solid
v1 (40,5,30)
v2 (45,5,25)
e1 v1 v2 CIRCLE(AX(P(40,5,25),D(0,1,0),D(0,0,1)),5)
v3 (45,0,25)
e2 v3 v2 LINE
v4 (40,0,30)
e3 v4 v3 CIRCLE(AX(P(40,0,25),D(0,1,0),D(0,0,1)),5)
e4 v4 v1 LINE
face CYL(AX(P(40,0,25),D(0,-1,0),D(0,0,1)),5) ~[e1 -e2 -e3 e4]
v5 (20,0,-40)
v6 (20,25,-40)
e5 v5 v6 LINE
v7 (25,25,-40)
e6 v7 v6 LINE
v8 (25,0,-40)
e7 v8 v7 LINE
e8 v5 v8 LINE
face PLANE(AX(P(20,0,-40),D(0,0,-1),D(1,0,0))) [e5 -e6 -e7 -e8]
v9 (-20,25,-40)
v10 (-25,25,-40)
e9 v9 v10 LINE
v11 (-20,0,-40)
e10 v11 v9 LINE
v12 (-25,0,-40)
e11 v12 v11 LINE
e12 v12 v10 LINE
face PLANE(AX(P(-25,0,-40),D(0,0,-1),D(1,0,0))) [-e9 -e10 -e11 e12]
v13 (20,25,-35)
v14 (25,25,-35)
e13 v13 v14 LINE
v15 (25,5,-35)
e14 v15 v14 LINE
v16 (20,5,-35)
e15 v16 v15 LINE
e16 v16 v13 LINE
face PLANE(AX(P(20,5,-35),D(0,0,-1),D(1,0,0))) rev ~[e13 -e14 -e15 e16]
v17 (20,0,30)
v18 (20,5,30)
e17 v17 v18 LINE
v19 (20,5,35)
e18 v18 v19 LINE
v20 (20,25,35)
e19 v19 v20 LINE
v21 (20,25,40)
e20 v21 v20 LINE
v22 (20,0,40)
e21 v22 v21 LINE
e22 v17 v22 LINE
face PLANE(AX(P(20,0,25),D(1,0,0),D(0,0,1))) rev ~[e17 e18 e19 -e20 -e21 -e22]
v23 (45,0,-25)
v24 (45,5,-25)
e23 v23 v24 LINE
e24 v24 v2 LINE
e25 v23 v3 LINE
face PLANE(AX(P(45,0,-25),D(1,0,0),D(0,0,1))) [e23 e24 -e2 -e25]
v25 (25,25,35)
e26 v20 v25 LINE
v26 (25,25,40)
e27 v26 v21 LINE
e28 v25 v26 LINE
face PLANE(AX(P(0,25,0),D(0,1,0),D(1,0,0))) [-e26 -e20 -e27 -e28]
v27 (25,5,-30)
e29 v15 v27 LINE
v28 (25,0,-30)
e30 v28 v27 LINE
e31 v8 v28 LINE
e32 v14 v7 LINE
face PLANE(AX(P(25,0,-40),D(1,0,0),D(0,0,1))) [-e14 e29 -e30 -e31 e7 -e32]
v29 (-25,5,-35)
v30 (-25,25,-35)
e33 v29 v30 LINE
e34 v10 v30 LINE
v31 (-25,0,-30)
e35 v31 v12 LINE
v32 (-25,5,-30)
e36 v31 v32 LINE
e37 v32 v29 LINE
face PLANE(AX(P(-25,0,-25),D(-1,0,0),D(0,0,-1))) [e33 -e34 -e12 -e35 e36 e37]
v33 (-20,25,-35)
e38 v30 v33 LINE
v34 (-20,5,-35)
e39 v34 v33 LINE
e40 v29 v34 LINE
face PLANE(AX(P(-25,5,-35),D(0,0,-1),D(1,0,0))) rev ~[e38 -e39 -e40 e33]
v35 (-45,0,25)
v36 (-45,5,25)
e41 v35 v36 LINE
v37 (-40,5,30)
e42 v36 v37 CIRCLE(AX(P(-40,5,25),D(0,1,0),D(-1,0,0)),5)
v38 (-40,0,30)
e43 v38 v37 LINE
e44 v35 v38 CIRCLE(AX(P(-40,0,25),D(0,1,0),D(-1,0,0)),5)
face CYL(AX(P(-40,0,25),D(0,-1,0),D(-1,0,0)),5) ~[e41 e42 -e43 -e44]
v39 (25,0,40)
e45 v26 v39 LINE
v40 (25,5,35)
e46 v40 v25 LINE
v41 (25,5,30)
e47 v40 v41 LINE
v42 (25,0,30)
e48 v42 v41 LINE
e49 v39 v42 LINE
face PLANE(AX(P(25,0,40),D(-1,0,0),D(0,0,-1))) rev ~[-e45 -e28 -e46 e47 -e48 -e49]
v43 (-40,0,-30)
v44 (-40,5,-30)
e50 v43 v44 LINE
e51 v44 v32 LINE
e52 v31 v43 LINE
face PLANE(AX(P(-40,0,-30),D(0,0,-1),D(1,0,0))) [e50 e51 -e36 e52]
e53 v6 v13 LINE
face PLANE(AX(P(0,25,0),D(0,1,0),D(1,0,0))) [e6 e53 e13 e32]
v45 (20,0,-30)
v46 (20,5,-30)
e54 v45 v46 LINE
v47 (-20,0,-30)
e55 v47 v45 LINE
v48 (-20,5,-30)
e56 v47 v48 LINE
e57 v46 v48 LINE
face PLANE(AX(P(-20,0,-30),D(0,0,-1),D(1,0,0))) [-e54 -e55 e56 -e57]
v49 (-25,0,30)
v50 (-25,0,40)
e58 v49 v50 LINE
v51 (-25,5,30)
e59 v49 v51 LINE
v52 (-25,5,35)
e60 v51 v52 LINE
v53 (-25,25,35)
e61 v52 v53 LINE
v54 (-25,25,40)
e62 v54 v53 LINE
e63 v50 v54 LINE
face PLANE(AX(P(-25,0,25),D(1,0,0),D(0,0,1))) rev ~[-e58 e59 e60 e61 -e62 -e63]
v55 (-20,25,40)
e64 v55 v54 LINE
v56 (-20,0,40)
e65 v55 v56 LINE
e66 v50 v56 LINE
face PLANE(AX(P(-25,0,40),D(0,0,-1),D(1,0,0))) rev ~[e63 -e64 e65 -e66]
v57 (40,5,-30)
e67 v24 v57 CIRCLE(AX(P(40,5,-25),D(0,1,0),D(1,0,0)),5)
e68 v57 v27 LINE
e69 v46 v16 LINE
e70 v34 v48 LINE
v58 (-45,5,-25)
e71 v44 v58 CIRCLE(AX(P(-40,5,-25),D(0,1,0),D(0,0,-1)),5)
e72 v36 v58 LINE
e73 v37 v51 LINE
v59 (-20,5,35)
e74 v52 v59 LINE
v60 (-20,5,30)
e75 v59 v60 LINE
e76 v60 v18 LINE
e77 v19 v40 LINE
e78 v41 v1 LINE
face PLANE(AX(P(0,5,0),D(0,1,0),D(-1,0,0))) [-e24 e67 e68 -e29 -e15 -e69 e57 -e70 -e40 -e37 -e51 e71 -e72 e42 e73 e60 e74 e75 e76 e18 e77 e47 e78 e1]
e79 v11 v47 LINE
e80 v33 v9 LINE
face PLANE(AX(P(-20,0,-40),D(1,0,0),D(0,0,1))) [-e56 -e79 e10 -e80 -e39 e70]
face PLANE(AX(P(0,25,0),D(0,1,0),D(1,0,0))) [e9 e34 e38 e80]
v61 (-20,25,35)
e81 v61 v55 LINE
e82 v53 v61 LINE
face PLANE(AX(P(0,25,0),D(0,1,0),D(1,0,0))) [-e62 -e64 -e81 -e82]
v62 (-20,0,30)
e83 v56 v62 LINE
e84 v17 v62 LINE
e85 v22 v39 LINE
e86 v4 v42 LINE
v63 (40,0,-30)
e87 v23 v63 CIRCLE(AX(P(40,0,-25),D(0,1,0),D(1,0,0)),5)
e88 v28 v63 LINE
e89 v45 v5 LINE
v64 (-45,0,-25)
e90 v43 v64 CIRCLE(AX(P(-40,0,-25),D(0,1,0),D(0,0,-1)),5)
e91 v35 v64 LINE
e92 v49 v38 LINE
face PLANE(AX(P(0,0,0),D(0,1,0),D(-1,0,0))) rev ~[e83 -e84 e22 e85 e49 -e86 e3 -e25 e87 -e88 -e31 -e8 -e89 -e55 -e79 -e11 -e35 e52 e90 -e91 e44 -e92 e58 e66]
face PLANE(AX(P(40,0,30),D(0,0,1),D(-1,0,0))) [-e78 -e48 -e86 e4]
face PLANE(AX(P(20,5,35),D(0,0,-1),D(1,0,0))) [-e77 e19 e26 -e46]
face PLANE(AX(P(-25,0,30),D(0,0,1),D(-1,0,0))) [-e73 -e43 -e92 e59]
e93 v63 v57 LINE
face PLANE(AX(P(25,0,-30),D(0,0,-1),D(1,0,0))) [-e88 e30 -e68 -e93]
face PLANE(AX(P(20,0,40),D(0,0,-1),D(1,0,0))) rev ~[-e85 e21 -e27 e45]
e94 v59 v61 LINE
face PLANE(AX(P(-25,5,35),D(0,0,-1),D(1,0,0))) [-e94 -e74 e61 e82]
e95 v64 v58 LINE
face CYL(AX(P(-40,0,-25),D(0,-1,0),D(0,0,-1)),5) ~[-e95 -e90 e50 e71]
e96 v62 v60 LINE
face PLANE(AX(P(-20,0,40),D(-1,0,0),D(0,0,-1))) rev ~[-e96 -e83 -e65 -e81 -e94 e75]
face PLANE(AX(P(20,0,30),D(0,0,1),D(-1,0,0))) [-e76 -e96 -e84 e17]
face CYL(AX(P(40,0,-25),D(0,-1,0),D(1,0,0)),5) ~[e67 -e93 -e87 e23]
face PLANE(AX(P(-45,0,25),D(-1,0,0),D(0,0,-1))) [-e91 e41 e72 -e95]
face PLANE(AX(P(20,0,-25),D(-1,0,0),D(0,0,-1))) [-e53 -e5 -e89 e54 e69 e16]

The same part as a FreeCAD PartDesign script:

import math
import FreeCAD as App
import Part
import Sketcher
from FreeCAD import Vector
Q = App.Units.Quantity

doc = App.newDocument("Part")
body = doc.addObject("PartDesign::Body", "Body")
body.AllowCompound = True

# Sketch on XZ plane
sketch1 = body.newObject("Sketcher::SketchObject", "Sketch")
sketch1.AttachmentSupport = (doc.getObject("XZ_Plane"), [""])
sketch1.MapMode = "FlatFace"
sketch1.addGeometry(Part.LineSegment(Vector(20, 25, 0), Vector(25, 25, 0)), False)
sketch1.addGeometry(Part.LineSegment(Vector(25, 25, 0), Vector(25, 40, 0)), False)
sketch1.addGeometry(Part.LineSegment(Vector(25, 40, 0), Vector(20, 40, 0)), False)
sketch1.addGeometry(Part.LineSegment(Vector(20, 40, 0), Vector(20, 25, 0)), False)
sketch1.addGeometry(Part.LineSegment(Vector(-25, 25, 0), Vector(-20, 25, 0)), False)
sketch1.addGeometry(Part.LineSegment(Vector(-20, 25, 0), Vector(-20, 40, 0)), False)
sketch1.addGeometry(Part.LineSegment(Vector(-20, 40, 0), Vector(-25, 40, 0)), False)
sketch1.addGeometry(Part.LineSegment(Vector(-25, 40, 0), Vector(-25, 25, 0)), False)
sketch1.addGeometry(Part.LineSegment(Vector(25, -40, 0), Vector(25, -25, 0)), False)
sketch1.addGeometry(Part.LineSegment(Vector(25, -25, 0), Vector(20, -25, 0)), False)
sketch1.addGeometry(Part.LineSegment(Vector(20, -25, 0), Vector(20, -40, 0)), False)
sketch1.addGeometry(Part.LineSegment(Vector(20, -40, 0), Vector(25, -40, 0)), False)
sketch1.addGeometry(Part.LineSegment(Vector(-20, -40, 0), Vector(-20, -25, 0)), False)
sketch1.addGeometry(Part.LineSegment(Vector(-20, -25, 0), Vector(-25, -25, 0)), False)
sketch1.addGeometry(Part.LineSegment(Vector(-25, -25, 0), Vector(-25, -40, 0)), False)
sketch1.addGeometry(Part.LineSegment(Vector(-25, -40, 0), Vector(-20, -40, 0)), False)
sketch1.addConstraint(Sketcher.Constraint("Coincident", 0, 2, 1, 1))
sketch1.addConstraint(Sketcher.Constraint("Coincident", 1, 2, 2, 1))
sketch1.addConstraint(Sketcher.Constraint("Coincident", 2, 2, 3, 1))
sketch1.addConstraint(Sketcher.Constraint("Coincident", 3, 2, 0, 1))
sketch1.addConstraint(Sketcher.Constraint("Coincident", 4, 2, 5, 1))
sketch1.addConstraint(Sketcher.Constraint("Coincident", 5, 2, 6, 1))
sketch1.addConstraint(Sketcher.Constraint("Coincident", 6, 2, 7, 1))
sketch1.addConstraint(Sketcher.Constraint("Coincident", 7, 2, 4, 1))
sketch1.addConstraint(Sketcher.Constraint("Coincident", 8, 2, 9, 1))
sketch1.addConstraint(Sketcher.Constraint("Coincident", 9, 2, 10, 1))
sketch1.addConstraint(Sketcher.Constraint("Coincident", 10, 2, 11, 1))
sketch1.addConstraint(Sketcher.Constraint("Coincident", 11, 2, 8, 1))
sketch1.addConstraint(Sketcher.Constraint("Coincident", 12, 2, 13, 1))
sketch1.addConstraint(Sketcher.Constraint("Coincident", 13, 2, 14, 1))
sketch1.addConstraint(Sketcher.Constraint("Coincident", 14, 2, 15, 1))
sketch1.addConstraint(Sketcher.Constraint("Coincident", 15, 2, 12, 1))
sketch1.addConstraint(Sketcher.Constraint("Horizontal", 0))
sketch1.addConstraint(Sketcher.Constraint("Vertical", 1))
sketch1.addConstraint(Sketcher.Constraint("Horizontal", 2))
sketch1.addConstraint(Sketcher.Constraint("Vertical", 3))
sketch1.addConstraint(Sketcher.Constraint("Horizontal", 4))
sketch1.addConstraint(Sketcher.Constraint("Vertical", 5))
sketch1.addConstraint(Sketcher.Constraint("Horizontal", 6))
sketch1.addConstraint(Sketcher.Constraint("Vertical", 7))
sketch1.addConstraint(Sketcher.Constraint("Vertical", 8))
sketch1.addConstraint(Sketcher.Constraint("Horizontal", 9))
sketch1.addConstraint(Sketcher.Constraint("Vertical", 10))
sketch1.addConstraint(Sketcher.Constraint("Horizontal", 11))
sketch1.addConstraint(Sketcher.Constraint("Vertical", 12))
sketch1.addConstraint(Sketcher.Constraint("Horizontal", 13))
sketch1.addConstraint(Sketcher.Constraint("Vertical", 14))
sketch1.addConstraint(Sketcher.Constraint("Horizontal", 15))
sketch1.addConstraint(Sketcher.Constraint("Symmetric", 7, 2, 8, 2, -1, 1))
sketch1.addConstraint(Sketcher.Constraint("Symmetric", 5, 2, 10, 2, -1, 1))
sketch1.addConstraint(Sketcher.Constraint("Symmetric", 3, 2, 12, 2, -1, 1))
sketch1.addConstraint(Sketcher.Constraint("Symmetric", 1, 2, 14, 2, -1, 1))
sketch1.addConstraint(Sketcher.Constraint("Symmetric", 3, 2, 4, 2, -2))
sketch1.addConstraint(Sketcher.Constraint("Symmetric", 1, 2, 6, 2, -2))
sketch1.addConstraint(Sketcher.Constraint("DistanceX", 0, 1, 0, 2, Q("5 mm")))
sketch1.addConstraint(Sketcher.Constraint("DistanceY", 1, 1, 1, 2, Q("15 mm")))
sketch1.addConstraint(Sketcher.Constraint("DistanceX", -1, 1, 0, 2, Q("25 mm")))
sketch1.addConstraint(Sketcher.Constraint("DistanceY", -1, 1, 0, 2, Q("25 mm")))
pad1 = body.newObject("PartDesign::Pad", "Pad")
pad1.Profile = sketch1
pad1.Length = 5
pad1.Reversed = True

# Sketch on XZ plane
sketch2 = body.newObject("Sketcher::SketchObject", "Sketch001")
sketch2.AttachmentSupport = (doc.getObject("XZ_Plane"), [""])
sketch2.MapMode = "FlatFace"
sketch2.AttachmentOffset = App.Placement(Vector(0, 0, -5), App.Rotation())
sketch2.addGeometry(Part.LineSegment(Vector(20, 40, 0), Vector(25, 40, 0)), False)
sketch2.addGeometry(Part.LineSegment(Vector(25, 40, 0), Vector(25, 35, 0)), False)
sketch2.addGeometry(Part.LineSegment(Vector(25, 35, 0), Vector(20, 35, 0)), False)
sketch2.addGeometry(Part.LineSegment(Vector(20, 35, 0), Vector(20, 40, 0)), False)
sketch2.addGeometry(Part.LineSegment(Vector(-25, 40, 0), Vector(-20, 40, 0)), False)
sketch2.addGeometry(Part.LineSegment(Vector(-20, 40, 0), Vector(-20, 35, 0)), False)
sketch2.addGeometry(Part.LineSegment(Vector(-20, 35, 0), Vector(-25, 35, 0)), False)
sketch2.addGeometry(Part.LineSegment(Vector(-25, 35, 0), Vector(-25, 40, 0)), False)
sketch2.addGeometry(Part.LineSegment(Vector(25, -35, 0), Vector(25, -40, 0)), False)
sketch2.addGeometry(Part.LineSegment(Vector(25, -40, 0), Vector(20, -40, 0)), False)
sketch2.addGeometry(Part.LineSegment(Vector(20, -40, 0), Vector(20, -35, 0)), False)
sketch2.addGeometry(Part.LineSegment(Vector(20, -35, 0), Vector(25, -35, 0)), False)
sketch2.addGeometry(Part.LineSegment(Vector(-20, -35, 0), Vector(-20, -40, 0)), False)
sketch2.addGeometry(Part.LineSegment(Vector(-20, -40, 0), Vector(-25, -40, 0)), False)
sketch2.addGeometry(Part.LineSegment(Vector(-25, -40, 0), Vector(-25, -35, 0)), False)
sketch2.addGeometry(Part.LineSegment(Vector(-25, -35, 0), Vector(-20, -35, 0)), False)
sketch2.addConstraint(Sketcher.Constraint("Coincident", 0, 2, 1, 1))
sketch2.addConstraint(Sketcher.Constraint("Coincident", 1, 2, 2, 1))
sketch2.addConstraint(Sketcher.Constraint("Coincident", 2, 2, 3, 1))
sketch2.addConstraint(Sketcher.Constraint("Coincident", 3, 2, 0, 1))
sketch2.addConstraint(Sketcher.Constraint("Coincident", 4, 2, 5, 1))
sketch2.addConstraint(Sketcher.Constraint("Coincident", 5, 2, 6, 1))
sketch2.addConstraint(Sketcher.Constraint("Coincident", 6, 2, 7, 1))
sketch2.addConstraint(Sketcher.Constraint("Coincident", 7, 2, 4, 1))
sketch2.addConstraint(Sketcher.Constraint("Coincident", 8, 2, 9, 1))
sketch2.addConstraint(Sketcher.Constraint("Coincident", 9, 2, 10, 1))
sketch2.addConstraint(Sketcher.Constraint("Coincident", 10, 2, 11, 1))
sketch2.addConstraint(Sketcher.Constraint("Coincident", 11, 2, 8, 1))
sketch2.addConstraint(Sketcher.Constraint("Coincident", 12, 2, 13, 1))
sketch2.addConstraint(Sketcher.Constraint("Coincident", 13, 2, 14, 1))
sketch2.addConstraint(Sketcher.Constraint("Coincident", 14, 2, 15, 1))
sketch2.addConstraint(Sketcher.Constraint("Coincident", 15, 2, 12, 1))
sketch2.addConstraint(Sketcher.Constraint("Horizontal", 0))
sketch2.addConstraint(Sketcher.Constraint("Vertical", 1))
sketch2.addConstraint(Sketcher.Constraint("Horizontal", 2))
sketch2.addConstraint(Sketcher.Constraint("Vertical", 3))
sketch2.addConstraint(Sketcher.Constraint("Horizontal", 4))
sketch2.addConstraint(Sketcher.Constraint("Vertical", 5))
sketch2.addConstraint(Sketcher.Constraint("Horizontal", 6))
sketch2.addConstraint(Sketcher.Constraint("Vertical", 7))
sketch2.addConstraint(Sketcher.Constraint("Vertical", 8))
sketch2.addConstraint(Sketcher.Constraint("Horizontal", 9))
sketch2.addConstraint(Sketcher.Constraint("Vertical", 10))
sketch2.addConstraint(Sketcher.Constraint("Horizontal", 11))
sketch2.addConstraint(Sketcher.Constraint("Vertical", 12))
sketch2.addConstraint(Sketcher.Constraint("Horizontal", 13))
sketch2.addConstraint(Sketcher.Constraint("Vertical", 14))
sketch2.addConstraint(Sketcher.Constraint("Horizontal", 15))
sketch2.addConstraint(Sketcher.Constraint("Symmetric", 7, 2, 8, 2, -1, 1))
sketch2.addConstraint(Sketcher.Constraint("Symmetric", 5, 2, 10, 2, -1, 1))
sketch2.addConstraint(Sketcher.Constraint("Symmetric", 3, 2, 12, 2, -1, 1))
sketch2.addConstraint(Sketcher.Constraint("Symmetric", 1, 2, 14, 2, -1, 1))
sketch2.addConstraint(Sketcher.Constraint("Symmetric", 3, 2, 4, 2, -2))
sketch2.addConstraint(Sketcher.Constraint("Symmetric", 1, 2, 6, 2, -2))
sketch2.addConstraint(Sketcher.Constraint("Equal", 15, 1))
sketch2.addConstraint(Sketcher.Constraint("DistanceX", 0, 1, 0, 2, Q("5 mm")))
sketch2.addConstraint(Sketcher.Constraint("DistanceX", -1, 1, 0, 2, Q("25 mm")))
sketch2.addConstraint(Sketcher.Constraint("DistanceY", -1, 1, 0, 2, Q("40 mm")))
pad2 = body.newObject("PartDesign::Pad", "Pad001")
pad2.Profile = sketch2
pad2.Length = 20
pad2.Reversed = True

# Sketch on XZ plane
sketch3 = body.newObject("Sketcher::SketchObject", "Sketch002")
sketch3.AttachmentSupport = (doc.getObject("XZ_Plane"), [""])
sketch3.MapMode = "FlatFace"
sketch3.addGeometry(Part.LineSegment(Vector(-25, -30, 0), Vector(-40, -30, 0)), False)
sketch3.addGeometry(Part.ArcOfCircle(Part.Circle(Vector(-40, -25, 0), Vector(0, 0, 1), 5), math.radians(180), math.radians(270)), False)
sketch3.addGeometry(Part.LineSegment(Vector(-45, -25, 0), Vector(-45, 25, 0)), False)
sketch3.addGeometry(Part.ArcOfCircle(Part.Circle(Vector(-40, 25, 0), Vector(0, 0, 1), 5), math.radians(90), math.radians(180)), False)
sketch3.addGeometry(Part.LineSegment(Vector(-40, 30, 0), Vector(-25, 30, 0)), False)
sketch3.addGeometry(Part.LineSegment(Vector(-25, 30, 0), Vector(-25, 25, 0)), False)
sketch3.addGeometry(Part.LineSegment(Vector(-25, 25, 0), Vector(-20, 25, 0)), False)
sketch3.addGeometry(Part.LineSegment(Vector(-20, 25, 0), Vector(-20, 30, 0)), False)
sketch3.addGeometry(Part.LineSegment(Vector(-20, 30, 0), Vector(20, 30, 0)), False)
sketch3.addGeometry(Part.LineSegment(Vector(20, 30, 0), Vector(20, 25, 0)), False)
sketch3.addGeometry(Part.LineSegment(Vector(20, 25, 0), Vector(25, 25, 0)), False)
sketch3.addGeometry(Part.LineSegment(Vector(25, 25, 0), Vector(25, 30, 0)), False)
sketch3.addGeometry(Part.LineSegment(Vector(25, 30, 0), Vector(40, 30, 0)), False)
sketch3.addGeometry(Part.ArcOfCircle(Part.Circle(Vector(40, 25, 0), Vector(0, 0, 1), 5), math.radians(0), math.radians(90)), False)
sketch3.addGeometry(Part.LineSegment(Vector(45, 25, 0), Vector(45, -25, 0)), False)
sketch3.addGeometry(Part.ArcOfCircle(Part.Circle(Vector(40, -25, 0), Vector(0, 0, 1), 5), math.radians(-90), math.radians(0)), False)
sketch3.addGeometry(Part.LineSegment(Vector(40, -30, 0), Vector(25, -30, 0)), False)
sketch3.addGeometry(Part.LineSegment(Vector(25, -30, 0), Vector(25, -25, 0)), False)
sketch3.addGeometry(Part.LineSegment(Vector(25, -25, 0), Vector(20, -25, 0)), False)
sketch3.addGeometry(Part.LineSegment(Vector(20, -25, 0), Vector(20, -30, 0)), False)
sketch3.addGeometry(Part.LineSegment(Vector(20, -30, 0), Vector(-20, -30, 0)), False)
sketch3.addGeometry(Part.LineSegment(Vector(-20, -30, 0), Vector(-20, -25, 0)), False)
sketch3.addGeometry(Part.LineSegment(Vector(-20, -25, 0), Vector(-25, -25, 0)), False)
sketch3.addGeometry(Part.LineSegment(Vector(-25, -25, 0), Vector(-25, -30, 0)), False)
sketch3.addConstraint(Sketcher.Constraint("Tangent", 0, 2, 1, 2))
sketch3.addConstraint(Sketcher.Constraint("Tangent", 1, 1, 2, 1))
sketch3.addConstraint(Sketcher.Constraint("Tangent", 2, 2, 3, 2))
sketch3.addConstraint(Sketcher.Constraint("Tangent", 3, 1, 4, 1))
sketch3.addConstraint(Sketcher.Constraint("Coincident", 4, 2, 5, 1))
sketch3.addConstraint(Sketcher.Constraint("Coincident", 5, 2, 6, 1))
sketch3.addConstraint(Sketcher.Constraint("Coincident", 6, 2, 7, 1))
sketch3.addConstraint(Sketcher.Constraint("Coincident", 7, 2, 8, 1))
sketch3.addConstraint(Sketcher.Constraint("Coincident", 8, 2, 9, 1))
sketch3.addConstraint(Sketcher.Constraint("Coincident", 9, 2, 10, 1))
sketch3.addConstraint(Sketcher.Constraint("Coincident", 10, 2, 11, 1))
sketch3.addConstraint(Sketcher.Constraint("Coincident", 11, 2, 12, 1))
sketch3.addConstraint(Sketcher.Constraint("Tangent", 12, 2, 13, 2))
sketch3.addConstraint(Sketcher.Constraint("Tangent", 13, 1, 14, 1))
sketch3.addConstraint(Sketcher.Constraint("Tangent", 14, 2, 15, 2))
sketch3.addConstraint(Sketcher.Constraint("Tangent", 15, 1, 16, 1))
sketch3.addConstraint(Sketcher.Constraint("Coincident", 16, 2, 17, 1))
sketch3.addConstraint(Sketcher.Constraint("Coincident", 17, 2, 18, 1))
sketch3.addConstraint(Sketcher.Constraint("Coincident", 18, 2, 19, 1))
sketch3.addConstraint(Sketcher.Constraint("Coincident", 19, 2, 20, 1))
sketch3.addConstraint(Sketcher.Constraint("Coincident", 20, 2, 21, 1))
sketch3.addConstraint(Sketcher.Constraint("Coincident", 21, 2, 22, 1))
sketch3.addConstraint(Sketcher.Constraint("Coincident", 22, 2, 23, 1))
sketch3.addConstraint(Sketcher.Constraint("Coincident", 23, 2, 0, 1))
sketch3.addConstraint(Sketcher.Constraint("Horizontal", 0))
sketch3.addConstraint(Sketcher.Constraint("Vertical", 2))
sketch3.addConstraint(Sketcher.Constraint("Horizontal", 4))
sketch3.addConstraint(Sketcher.Constraint("Vertical", 5))
sketch3.addConstraint(Sketcher.Constraint("Horizontal", 6))
sketch3.addConstraint(Sketcher.Constraint("Vertical", 7))
sketch3.addConstraint(Sketcher.Constraint("Horizontal", 8))
sketch3.addConstraint(Sketcher.Constraint("Vertical", 9))
sketch3.addConstraint(Sketcher.Constraint("Horizontal", 10))
sketch3.addConstraint(Sketcher.Constraint("Vertical", 11))
sketch3.addConstraint(Sketcher.Constraint("Horizontal", 12))
sketch3.addConstraint(Sketcher.Constraint("Vertical", 14))
sketch3.addConstraint(Sketcher.Constraint("Horizontal", 16))
sketch3.addConstraint(Sketcher.Constraint("Vertical", 17))
sketch3.addConstraint(Sketcher.Constraint("Horizontal", 18))
sketch3.addConstraint(Sketcher.Constraint("Vertical", 19))
sketch3.addConstraint(Sketcher.Constraint("Horizontal", 20))
sketch3.addConstraint(Sketcher.Constraint("Vertical", 21))
sketch3.addConstraint(Sketcher.Constraint("Horizontal", 22))
sketch3.addConstraint(Sketcher.Constraint("Vertical", 23))
sketch3.addConstraint(Sketcher.Constraint("Equal", 1, 3))
sketch3.addConstraint(Sketcher.Constraint("Equal", 3, 13))
sketch3.addConstraint(Sketcher.Constraint("Equal", 13, 15))
sketch3.addConstraint(Sketcher.Constraint("Symmetric", 1, 3, 13, 3, -1, 1))
sketch3.addConstraint(Sketcher.Constraint("Symmetric", 4, 2, 16, 2, -1, 1))
sketch3.addConstraint(Sketcher.Constraint("Symmetric", 6, 2, 18, 2, -1, 1))
sketch3.addConstraint(Sketcher.Constraint("Symmetric", 8, 2, 20, 2, -1, 1))
sketch3.addConstraint(Sketcher.Constraint("Symmetric", 10, 2, 22, 2, -1, 1))
sketch3.addConstraint(Sketcher.Constraint("Symmetric", 6, 2, 9, 2, -2))
sketch3.addConstraint(Sketcher.Constraint("Symmetric", 4, 2, 11, 2, -2))
sketch3.addConstraint(Sketcher.Constraint("Horizontal", 2, 2, 5, 2))
sketch3.addConstraint(Sketcher.Constraint("Horizontal", 4, 2, 7, 2))
sketch3.addConstraint(Sketcher.Constraint("Equal", 22, 5))
sketch3.addConstraint(Sketcher.Constraint("Radius", 1, Q("5 mm")))
sketch3.addConstraint(Sketcher.Constraint("DistanceX", 0, 2, 0, 1, Q("15 mm")))
sketch3.addConstraint(Sketcher.Constraint("DistanceX", 8, 1, 8, 2, Q("40 mm")))
sketch3.addConstraint(Sketcher.Constraint("DistanceY", 2, 1, 2, 2, Q("50 mm")))
pad3 = body.newObject("PartDesign::Pad", "Pad002")
pad3.Profile = sketch3
pad3.Length = 5
pad3.Reversed = True

doc.recompute()
